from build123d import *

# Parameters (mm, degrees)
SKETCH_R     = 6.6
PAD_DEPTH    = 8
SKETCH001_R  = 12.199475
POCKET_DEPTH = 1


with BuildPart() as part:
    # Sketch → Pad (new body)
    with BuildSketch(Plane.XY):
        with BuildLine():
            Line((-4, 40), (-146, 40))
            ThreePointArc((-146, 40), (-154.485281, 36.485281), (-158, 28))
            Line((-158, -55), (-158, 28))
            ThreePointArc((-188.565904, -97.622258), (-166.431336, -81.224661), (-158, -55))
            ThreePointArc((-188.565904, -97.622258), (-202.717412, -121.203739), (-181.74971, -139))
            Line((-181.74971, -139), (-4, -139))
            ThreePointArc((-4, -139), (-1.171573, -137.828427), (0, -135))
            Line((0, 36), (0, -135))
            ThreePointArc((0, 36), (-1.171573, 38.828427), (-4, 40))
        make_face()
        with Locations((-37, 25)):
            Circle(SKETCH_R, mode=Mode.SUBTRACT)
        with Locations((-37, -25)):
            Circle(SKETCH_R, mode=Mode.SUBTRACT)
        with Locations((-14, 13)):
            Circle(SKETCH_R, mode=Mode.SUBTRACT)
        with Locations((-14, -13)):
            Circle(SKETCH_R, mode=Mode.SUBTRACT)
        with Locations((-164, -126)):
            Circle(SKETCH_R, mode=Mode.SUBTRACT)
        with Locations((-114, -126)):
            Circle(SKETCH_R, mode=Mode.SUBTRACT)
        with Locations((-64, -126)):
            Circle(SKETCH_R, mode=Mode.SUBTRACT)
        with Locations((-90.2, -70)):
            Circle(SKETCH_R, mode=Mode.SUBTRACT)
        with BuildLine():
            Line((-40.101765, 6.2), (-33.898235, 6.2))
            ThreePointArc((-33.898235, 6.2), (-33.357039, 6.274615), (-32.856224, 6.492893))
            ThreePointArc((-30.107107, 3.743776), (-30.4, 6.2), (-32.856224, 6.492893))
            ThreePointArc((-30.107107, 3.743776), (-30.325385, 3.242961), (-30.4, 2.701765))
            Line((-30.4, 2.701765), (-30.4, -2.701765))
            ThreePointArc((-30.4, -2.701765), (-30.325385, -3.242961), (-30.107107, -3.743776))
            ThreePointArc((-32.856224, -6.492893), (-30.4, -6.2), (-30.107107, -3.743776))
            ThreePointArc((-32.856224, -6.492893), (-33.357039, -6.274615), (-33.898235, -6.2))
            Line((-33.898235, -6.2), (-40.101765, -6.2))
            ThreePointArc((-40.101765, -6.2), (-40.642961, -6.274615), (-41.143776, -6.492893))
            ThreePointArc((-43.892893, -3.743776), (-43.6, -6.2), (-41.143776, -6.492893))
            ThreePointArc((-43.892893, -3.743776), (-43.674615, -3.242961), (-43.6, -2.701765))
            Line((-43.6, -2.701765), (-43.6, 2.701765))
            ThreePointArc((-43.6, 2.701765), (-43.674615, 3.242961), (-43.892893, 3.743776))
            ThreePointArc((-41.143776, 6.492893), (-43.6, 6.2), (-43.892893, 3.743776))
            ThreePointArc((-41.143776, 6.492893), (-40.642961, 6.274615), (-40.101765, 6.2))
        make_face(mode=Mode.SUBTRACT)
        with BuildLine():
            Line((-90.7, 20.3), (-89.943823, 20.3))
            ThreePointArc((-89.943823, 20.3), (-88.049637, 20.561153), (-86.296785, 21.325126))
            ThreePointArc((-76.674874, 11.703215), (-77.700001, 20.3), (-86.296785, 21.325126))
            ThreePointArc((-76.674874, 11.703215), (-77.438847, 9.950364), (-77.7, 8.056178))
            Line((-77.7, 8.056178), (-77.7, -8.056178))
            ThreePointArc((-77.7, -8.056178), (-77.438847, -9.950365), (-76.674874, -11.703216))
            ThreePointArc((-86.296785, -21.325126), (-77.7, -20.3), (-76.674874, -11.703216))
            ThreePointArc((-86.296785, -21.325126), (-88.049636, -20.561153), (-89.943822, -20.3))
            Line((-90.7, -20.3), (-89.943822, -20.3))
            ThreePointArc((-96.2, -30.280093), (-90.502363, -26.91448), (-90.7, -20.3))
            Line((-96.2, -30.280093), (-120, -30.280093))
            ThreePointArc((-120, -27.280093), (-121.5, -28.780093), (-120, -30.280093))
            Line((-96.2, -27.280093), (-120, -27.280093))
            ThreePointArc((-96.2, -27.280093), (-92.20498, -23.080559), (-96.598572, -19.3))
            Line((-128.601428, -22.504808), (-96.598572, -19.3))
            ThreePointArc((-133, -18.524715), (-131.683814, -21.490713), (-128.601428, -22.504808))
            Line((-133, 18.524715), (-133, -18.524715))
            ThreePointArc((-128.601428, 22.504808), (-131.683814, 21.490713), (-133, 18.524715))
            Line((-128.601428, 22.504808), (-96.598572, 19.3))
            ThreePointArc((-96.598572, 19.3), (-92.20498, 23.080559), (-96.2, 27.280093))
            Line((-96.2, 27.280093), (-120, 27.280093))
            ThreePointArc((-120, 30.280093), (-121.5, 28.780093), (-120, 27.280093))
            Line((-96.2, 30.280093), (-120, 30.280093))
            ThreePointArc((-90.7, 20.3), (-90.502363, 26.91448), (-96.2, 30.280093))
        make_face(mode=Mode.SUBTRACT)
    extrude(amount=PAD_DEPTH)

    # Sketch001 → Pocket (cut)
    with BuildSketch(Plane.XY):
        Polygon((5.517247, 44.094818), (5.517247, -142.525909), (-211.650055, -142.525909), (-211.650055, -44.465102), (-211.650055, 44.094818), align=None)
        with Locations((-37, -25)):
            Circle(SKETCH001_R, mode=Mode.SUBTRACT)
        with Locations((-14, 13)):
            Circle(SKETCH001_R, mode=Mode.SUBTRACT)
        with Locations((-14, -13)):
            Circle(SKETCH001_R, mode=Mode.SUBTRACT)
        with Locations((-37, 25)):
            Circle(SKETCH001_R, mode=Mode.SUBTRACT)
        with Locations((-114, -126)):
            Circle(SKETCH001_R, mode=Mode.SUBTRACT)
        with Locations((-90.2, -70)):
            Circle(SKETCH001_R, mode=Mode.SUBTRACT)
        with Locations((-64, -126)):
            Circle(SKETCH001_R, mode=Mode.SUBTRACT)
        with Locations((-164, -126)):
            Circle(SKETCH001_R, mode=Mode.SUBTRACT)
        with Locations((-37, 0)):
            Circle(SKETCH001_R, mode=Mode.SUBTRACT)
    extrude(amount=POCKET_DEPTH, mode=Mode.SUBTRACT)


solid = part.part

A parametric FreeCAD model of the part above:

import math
import FreeCAD as App
import Part
import Sketcher

V = App.Vector


def add_polygon(sketch, points):
    """Adds a closed chain of lines whose ends are joined by coincident constraints."""
    first, n = sketch.GeometryCount, len(points)
    for a, b in zip(points, points[1:] + points[:1]):
        sketch.addGeometry(Part.LineSegment(App.Vector(*a, 0), App.Vector(*b, 0)), False)
    for i in range(n):
        sketch.addConstraint(Sketcher.Constraint("Coincident", first + i, 2, first + (i + 1) % n, 1))

doc = App.newDocument("Part")
body = doc.addObject("PartDesign::Body", "Body")

# Sketch on XY plane
sketch1 = body.newObject("Sketcher::SketchObject", "Sketch")
sketch1.AttachmentSupport = (doc.getObject("XY_Plane"), [""])
sketch1.MapMode = "FlatFace"
sketch1.addGeometry([
    Part.LineSegment(V(-4, 40, 0), V(-146, 40, 0)),  # 0
    Part.ArcOfCircle(Part.Circle(V(-146, 28, 0), V(0, 0, 1), 12), math.radians(90), math.radians(180)),  # 1
    Part.LineSegment(V(-158, 28, 0), V(-158, -55, 0)),  # 2
    Part.ArcOfCircle(Part.Circle(V(-203, -55, 0), V(0, 0, 1), 45), math.radians(-71), math.radians(0)),  # 3
    Part.ArcOfCircle(Part.Circle(V(-181.7, -117.7, 0), V(0, 0, 1), 21.3), math.radians(109), math.radians(270)),  # 4
    Part.LineSegment(V(-181.7, -139, 0), V(-4, -139, 0)),  # 5
    Part.ArcOfCircle(Part.Circle(V(-4, -135, 0), V(0, 0, 1), 4), math.radians(-90), math.radians(0)),  # 6
    Part.LineSegment(V(0, -135, 0), V(0, 36, 0)),  # 7
    Part.ArcOfCircle(Part.Circle(V(-4, 36, 0), V(0, 0, 1), 4), math.radians(0), math.radians(90)),  # 8
    Part.Circle(V(-164, -126, 0), V(0, 0, 1), 6.6),  # 9
    Part.Circle(V(-114, -126, 0), V(0, 0, 1), 6.6),  # 10
    Part.Circle(V(-90.2, -70, 0), V(0, 0, 1), 6.6),  # 11
    Part.Circle(V(-64, -126, 0), V(0, 0, 1), 6.6),  # 12
    Part.ArcOfCircle(Part.Circle(V(-96.2, 23.8, 0), V(0, 0, 1), 6.5), math.radians(-32), math.radians(90)),  # 13
    Part.LineSegment(V(-90.7, 20.3, 0), V(-89.9, 20.3, 0)),  # 14
    Part.ArcOfCircle(Part.Circle(V(-89.9, 27.3, 0), V(0, 0, 1), 7), math.radians(-90), math.radians(-59)),  # 15
    Part.ArcOfCircle(Part.Circle(V(-82.6, 15.4, 0), V(0, 0, 1), 7), math.radians(-31), math.radians(121)),  # 16
    Part.ArcOfCircle(Part.Circle(V(-70.7, 8.1, 0), V(0, 0, 1), 7), math.radians(149), math.radians(180)),  # 17
    Part.LineSegment(V(-77.7, 8.1, 0), V(-77.7, -8.1, 0)),  # 18
    Part.ArcOfCircle(Part.Circle(V(-70.7, -8.1, 0), V(0, 0, 1), 7), math.radians(180), math.radians(211)),  # 19
    Part.ArcOfCircle(Part.Circle(V(-82.6, -15.4, 0), V(0, 0, 1), 7), math.radians(-121), math.radians(31)),  # 20
    Part.ArcOfCircle(Part.Circle(V(-89.9, -27.3, 0), V(0, 0, 1), 7), math.radians(59), math.radians(90)),  # 21
    Part.LineSegment(V(-89.9, -20.3, 0), V(-90.7, -20.3, 0)),  # 22
    Part.ArcOfCircle(Part.Circle(V(-96.2, -23.8, 0), V(0, 0, 1), 6.5), math.radians(-90), math.radians(32)),  # 23
    Part.LineSegment(V(-96.2, -30.3, 0), V(-120, -30.3, 0)),  # 24
    Part.ArcOfCircle(Part.Circle(V(-120, -28.8, 0), V(0, 0, 1), 1.5), math.radians(90), math.radians(270)),  # 25
    Part.LineSegment(V(-120, -27.3, 0), V(-96.2, -27.3, 0)),  # 26
    Part.ArcOfCircle(Part.Circle(V(-96.2, -23.3, 0), V(0, 0, 1), 4), math.radians(-90), math.radians(96)),  # 27
    Part.LineSegment(V(-96.6, -19.3, 0), V(-128.6, -22.5, 0)),  # 28
    Part.ArcOfCircle(Part.Circle(V(-129, -18.5, 0), V(0, 0, 1), 4), math.radians(180), math.radians(276)),  # 29
    Part.LineSegment(V(-133, -18.5, 0), V(-133, 18.5, 0)),  # 30
    Part.ArcOfCircle(Part.Circle(V(-129, 18.5, 0), V(0, 0, 1), 4), math.radians(84), math.radians(180)),  # 31
    Part.LineSegment(V(-128.6, 22.5, 0), V(-96.6, 19.3, 0)),  # 32
    Part.ArcOfCircle(Part.Circle(V(-96.2, 23.3, 0), V(0, 0, 1), 4), math.radians(-96), math.radians(90)),  # 33
    Part.LineSegment(V(-96.2, 27.3, 0), V(-120, 27.3, 0)),  # 34
    Part.ArcOfCircle(Part.Circle(V(-120, 28.8, 0), V(0, 0, 1), 1.5), math.radians(90), math.radians(270)),  # 35
    Part.LineSegment(V(-120, 30.3, 0), V(-96.2, 30.3, 0)),  # 36
    Part.Circle(V(-37, -25, 0), V(0, 0, 1), 6.6),  # 37
    Part.Circle(V(-14, -13, 0), V(0, 0, 1), 6.6),  # 38
    Part.ArcOfCircle(Part.Circle(V(-40.1, 8.2, 0), V(0, 0, 1), 2), math.radians(-121), math.radians(-90)),  # 39
    Part.LineSegment(V(-40.1, 6.2, 0), V(-33.9, 6.2, 0)),  # 40
    Part.ArcOfCircle(Part.Circle(V(-33.9, 8.2, 0), V(0, 0, 1), 2), math.radians(-90), math.radians(-59)),  # 41
    Part.ArcOfCircle(Part.Circle(V(-31.8, 4.8, 0), V(0, 0, 1), 2), math.radians(-31), math.radians(121)),  # 42
    Part.ArcOfCircle(Part.Circle(V(-28.4, 2.7, 0), V(0, 0, 1), 2), math.radians(149), math.radians(180)),  # 43
    Part.LineSegment(V(-30.4, 2.7, 0), V(-30.4, -2.7, 0)),  # 44
    Part.ArcOfCircle(Part.Circle(V(-28.4, -2.7, 0), V(0, 0, 1), 2), math.radians(180), math.radians(211)),  # 45
    Part.ArcOfCircle(Part.Circle(V(-31.8, -4.8, 0), V(0, 0, 1), 2), math.radians(-121), math.radians(31)),  # 46
    Part.ArcOfCircle(Part.Circle(V(-33.9, -8.2, 0), V(0, 0, 1), 2), math.radians(59), math.radians(90)),  # 47
    Part.LineSegment(V(-33.9, -6.2, 0), V(-40.1, -6.2, 0)),  # 48
    Part.ArcOfCircle(Part.Circle(V(-40.1, -8.2, 0), V(0, 0, 1), 2), math.radians(90), math.radians(121)),  # 49
    Part.ArcOfCircle(Part.Circle(V(-42.2, -4.8, 0), V(0, 0, 1), 2), math.radians(149), math.radians(301)),  # 50
    Part.ArcOfCircle(Part.Circle(V(-45.6, -2.7, 0), V(0, 0, 1), 2), math.radians(-31), math.radians(0)),  # 51
    Part.LineSegment(V(-43.6, -2.7, 0), V(-43.6, 2.7, 0)),  # 52
    Part.ArcOfCircle(Part.Circle(V(-45.6, 2.7, 0), V(0, 0, 1), 2), math.radians(0), math.radians(31)),  # 53
    Part.ArcOfCircle(Part.Circle(V(-42.2, 4.8, 0), V(0, 0, 1), 2), math.radians(59), math.radians(211)),  # 54
    Part.Circle(V(-37, 25, 0), V(0, 0, 1), 6.6),  # 55
    Part.Circle(V(-14, 13, 0), V(0, 0, 1), 6.6),  # 56
], False)
sketch1.addConstraint([
    Sketcher.Constraint("Tangent", 0, 2, 1, 1),
    Sketcher.Constraint("Tangent", 1, 2, 2, 1),
    Sketcher.Constraint("Tangent", 2, 2, 3, 2),
    Sketcher.Constraint("Tangent", 3, 1, 4, 1),
    Sketcher.Constraint("Tangent", 4, 2, 5, 1),
    Sketcher.Constraint("Tangent", 5, 2, 6, 1),
    Sketcher.Constraint("Tangent", 6, 2, 7, 1),
    Sketcher.Constraint("Tangent", 7, 2, 8, 1),
    Sketcher.Constraint("Tangent", 8, 2, 0, 1),
    Sketcher.Constraint("Coincident", 13, 1, 14, 1),
    Sketcher.Constraint("Tangent", 14, 2, 15, 1),
    Sketcher.Constraint("Tangent", 15, 2, 16, 2),
    Sketcher.Constraint("Tangent", 16, 1, 17, 1),
    Sketcher.Constraint("Tangent", 17, 2, 18, 1),
    Sketcher.Constraint("Tangent", 18, 2, 19, 1),
    Sketcher.Constraint("Tangent", 19, 2, 20, 2),
    Sketcher.Constraint("Tangent", 20, 1, 21, 1),
    Sketcher.Constraint("Tangent", 21, 2, 22, 1),
    Sketcher.Constraint("Coincident", 22, 2, 23, 2),
    Sketcher.Constraint("Tangent", 23, 1, 24, 1),
    Sketcher.Constraint("Tangent", 24, 2, 25, 2),
    Sketcher.Constraint("Tangent", 25, 1, 26, 1),
    Sketcher.Constraint("Tangent", 26, 2, 27, 1),
    Sketcher.Constraint("Tangent", 27, 2, 28, 1),
    Sketcher.Constraint("Tangent", 28, 2, 29, 2),
    Sketcher.Constraint("Tangent", 29, 1, 30, 1),
    Sketcher.Constraint("Tangent", 30, 2, 31, 2),
    Sketcher.Constraint("Tangent", 31, 1, 32, 1),
    Sketcher.Constraint("Tangent", 32, 2, 33, 1),
    Sketcher.Constraint("Tangent", 33, 2, 34, 1),
    Sketcher.Constraint("Tangent", 34, 2, 35, 2),
    Sketcher.Constraint("Tangent", 35, 1, 36, 1),
    Sketcher.Constraint("Tangent", 36, 2, 13, 2),
    Sketcher.Constraint("Tangent", 39, 2, 40, 1),
    Sketcher.Constraint("Tangent", 40, 2, 41, 1),
    Sketcher.Constraint("Tangent", 41, 2, 42, 2),
    Sketcher.Constraint("Tangent", 42, 1, 43, 1),
    Sketcher.Constraint("Tangent", 43, 2, 44, 1),
    Sketcher.Constraint("Tangent", 44, 2, 45, 1),
    Sketcher.Constraint("Tangent", 45, 2, 46, 2),
    Sketcher.Constraint("Tangent", 46, 1, 47, 1),
    Sketcher.Constraint("Tangent", 47, 2, 48, 1),
    Sketcher.Constraint("Tangent", 48, 2, 49, 1),
    Sketcher.Constraint("Tangent", 49, 2, 50, 2),
    Sketcher.Constraint("Tangent", 50, 1, 51, 1),
    Sketcher.Constraint("Tangent", 51, 2, 52, 1),
    Sketcher.Constraint("Tangent", 52, 2, 53, 1),
    Sketcher.Constraint("Tangent", 53, 2, 54, 2),
    Sketcher.Constraint("Tangent", 54, 1, 39, 1),
    Sketcher.Constraint("Horizontal", 0),
    Sketcher.Constraint("Vertical", 2),
    Sketcher.Constraint("Horizontal", 5),
    Sketcher.Constraint("Vertical", 7),
    Sketcher.Constraint("Horizontal", 14),
    Sketcher.Constraint("Vertical", 18),
    Sketcher.Constraint("Horizontal", 22),
    Sketcher.Constraint("Horizontal", 24),
    Sketcher.Constraint("Horizontal", 26),
    Sketcher.Constraint("Vertical", 30),
    Sketcher.Constraint("Horizontal", 34),
    Sketcher.Constraint("Horizontal", 36),
    Sketcher.Constraint("Horizontal", 40),
    Sketcher.Constraint("Vertical", 44),
    Sketcher.Constraint("Horizontal", 48),
    Sketcher.Constraint("Vertical", 52),
    Sketcher.Constraint("Equal", 6, 8),
    Sketcher.Constraint("Equal", 9, 10),
    Sketcher.Constraint("Equal", 10, 11),
    Sketcher.Constraint("Equal", 11, 12),
    Sketcher.Constraint("Equal", 16, 17),
    Sketcher.Constraint("Equal", 17, 19),
    Sketcher.Constraint("Equal", 19, 20),
    Sketcher.Constraint("Equal", 20, 21),
    Sketcher.Constraint("Equal", 13, 23),
    Sketcher.Constraint("Equal", 8, 27),
    Sketcher.Constraint("Equal", 27, 29),
    Sketcher.Constraint("Equal", 29, 31),
    Sketcher.Constraint("Equal", 31, 33),
    Sketcher.Constraint("Equal", 25, 35),
    Sketcher.Constraint("Equal", 12, 37),
    Sketcher.Constraint("Equal", 37, 38),
    Sketcher.Constraint("Equal", 39, 41),
    Sketcher.Constraint("Equal", 41, 42),
    Sketcher.Constraint("Equal", 42, 43),
    Sketcher.Constraint("Equal", 43, 45),
    Sketcher.Constraint("Equal", 45, 46),
    Sketcher.Constraint("Equal", 46, 47),
    Sketcher.Constraint("Equal", 47, 49),
    Sketcher.Constraint("Equal", 49, 50),
    Sketcher.Constraint("Equal", 50, 51),
    Sketcher.Constraint("Equal", 51, 53),
    Sketcher.Constraint("Equal", 53, 54),
    Sketcher.Constraint("Equal", 38, 55),
    Sketcher.Constraint("Equal", 55, 56),
    Sketcher.Constraint("Symmetric", 16, 3, 20, 3, -1),
    Sketcher.Constraint("Symmetric", 15, 3, 21, 3, -1),
    Sketcher.Constraint("Symmetric", 13, 3, 23, 3, -1),
    Sketcher.Constraint("Symmetric", 42, 3, 46, 3, -1),
    Sketcher.Constraint("Symmetric", 39, 3, 49, 3, -1),
    Sketcher.Constraint("Symmetric", 37, 3, 55, 3, -1),
    Sketcher.Constraint("Symmetric", 38, 3, 56, 3, -1),
    Sketcher.Constraint("Symmetric", 28, 2, 31, 1, -1),
    Sketcher.Constraint("PointOnObject", 6, 2, -2),
    Sketcher.Constraint("Horizontal", 9, 3, 10, 3),
    Sketcher.Constraint("Horizontal", 10, 3, 12, 3),
    Sketcher.Constraint("Horizontal", 46, 3, 50, 3),
    Sketcher.Constraint("Horizontal", 45, 3, 51, 3),
    Sketcher.Constraint("Horizontal", 43, 3, 53, 3),
    Sketcher.Constraint("Vertical", 23, 3, 27, 3),
    Sketcher.Constraint("Vertical", 25, 3, 35, 3),
    Sketcher.Constraint("Radius", 1, 12.000001),
    Sketcher.Constraint("Radius", 3, 44.999999),
    Sketcher.Constraint("Radius", 6, 4.0),
    Sketcher.Constraint("Radius", 16, 7.0),
    Sketcher.Constraint("Radius", 39, 2.000001),
    Sketcher.Constraint("Diameter", 9, 13.2),
    Sketcher.Constraint("Radius", 25, 1.5),
    Sketcher.Constraint("DistanceX", 0, 2, 0, 1, 142.0),
    Sketcher.Constraint("DistanceY", 2, 2, 2, 1, 83.0),
    Sketcher.Constraint("DistanceY", 7, 1, 7, 2, 171.0),
    Sketcher.Constraint("DistanceX", 24, 2, 24, 1, 23.8),
    Sketcher.Constraint("DistanceY", -1, 1, 1, 3, 27.999999),
    Sketcher.Constraint("DistanceX", 9, 3, -1, 1, 164.0),
    Sketcher.Constraint("DistanceY", 9, 3, -1, 1, 126.0),
    Sketcher.Constraint("DistanceX", 10, 3, -1, 1, 114.0),
    Sketcher.Constraint("DistanceY", 11, 3, -1, 1, 70.0),
    Sketcher.Constraint("DistanceX", 12, 3, -1, 1, 64.0),
    Sketcher.Constraint("DistanceX", 25, 3, -1, 1, 120.0),
    Sketcher.Constraint("DistanceX", 29, 3, -1, 1, 129.0),
    Sketcher.Constraint("DistanceX", 37, 3, -1, 1, 37.0),
    Sketcher.Constraint("DistanceY", 37, 3, -1, 1, 25.0),
    Sketcher.Constraint("DistanceX", 38, 3, -1, 1, 14.0),
    Sketcher.Constraint("DistanceY", 38, 3, -1, 1, 13.0),
    Sketcher.Constraint("DistanceX", 11, 3, -1, 1, 90.2),
    Sketcher.Constraint("DistanceX", 17, 3, -1, 1, 70.700001),
    Sketcher.Constraint("DistanceY", 21, 3, -1, 1, 27.299999),
    Sketcher.Constraint("DistanceY", -1, 1, 39, 3, 8.200001),
    Sketcher.Constraint("DistanceX", 43, 3, -1, 1, 28.399999),
    Sketcher.Constraint("DistanceX", 51, 3, -1, 1, 45.600001),
    Sketcher.Constraint("DistanceX", 13, 1, -1, 1, 90.7),
    Sketcher.Constraint("DistanceY", 27, 2, -1, 1, 19.3),
    Sketcher.Constraint("Radius", 4, 21.25029),
    Sketcher.Constraint("DistanceX", 22, 2, 22, 1, 0.756178),
    Sketcher.Constraint("DistanceX", 40, 1, 40, 2, 6.20353),
    Sketcher.Constraint("DistanceY", 30, 1, 30, 2, 37.04943),
    Sketcher.Constraint("DistanceY", 44, 2, 44, 1, 5.40353),
    Sketcher.Constraint("DistanceY", 18, 2, 18, 1, 16.112356),
])
pad1 = body.newObject("PartDesign::Pad", "Pad")
pad1.Profile = sketch1
pad1.Length = 8

# Sketch on XY plane
sketch2 = body.newObject("Sketcher::SketchObject", "Sketch001")
sketch2.AttachmentSupport = (doc.getObject("XY_Plane"), [""])
sketch2.MapMode = "FlatFace"
add_polygon(sketch2, [(6, -143), (6, 44), (-212, 44), (-212, -143)])  # lines 0-3
sketch2.addGeometry(Part.Circle(V(-64, -126, 0), V(0, 0, 1), 12), False)  # 4
sketch2.addGeometry(Part.Circle(V(-114, -126, 0), V(0, 0, 1), 12), False)  # 5
sketch2.addGeometry(Part.Circle(V(-164, -126, 0), V(0, 0, 1), 12), False)  # 6
sketch2.addGeometry(Part.Circle(V(-90, -70, 0), V(0, 0, 1), 12), False)  # 7
sketch2.addGeometry(Part.Circle(V(-14, -13, 0), V(0, 0, 1), 12), False)  # 8
sketch2.addGeometry(Part.Circle(V(-37, -25, 0), V(0, 0, 1), 12), False)  # 9
sketch2.addGeometry(Part.Circle(V(-14, 13, 0), V(0, 0, 1), 12), False)  # 10
sketch2.addGeometry(Part.Circle(V(-37, 0, 0), V(0, 0, 1), 12), False)  # 11
sketch2.addGeometry(Part.Circle(V(-37, 25, 0), V(0, 0, 1), 12), False)  # 12
sketch2.addConstraint([
    Sketcher.Constraint("Vertical", 0),
    Sketcher.Constraint("Horizontal", 1),
    Sketcher.Constraint("Vertical", 2),
    Sketcher.Constraint("Horizontal", 3),
    Sketcher.Constraint("Equal", 4, 5),
    Sketcher.Constraint("Equal", 5, 6),
    Sketcher.Constraint("Equal", 6, 7),
    Sketcher.Constraint("Equal", 7, 8),
    Sketcher.Constraint("Equal", 8, 9),
    Sketcher.Constraint("Equal", 9, 10),
    Sketcher.Constraint("Equal", 10, 11),
    Sketcher.Constraint("Equal", 11, 12),
    Sketcher.Constraint("Symmetric", 8, 3, 10, 3, -1),
    Sketcher.Constraint("Symmetric", 9, 3, 12, 3, -1),
    Sketcher.Constraint("PointOnObject", 11, 3, -1),
    Sketcher.Constraint("Horizontal", 4, 3, 5, 3),
    Sketcher.Constraint("Horizontal", 5, 3, 6, 3),
    Sketcher.Constraint("Vertical", 9, 3, 11, 3),
    Sketcher.Constraint("DistanceX", 4, 3, -1, 1, 64.0),
    Sketcher.Constraint("DistanceY", 4, 3, -1, 1, 126.0),
    Sketcher.Constraint("DistanceX", 5, 3, -1, 1, 114.0),
    Sketcher.Constraint("DistanceX", 6, 3, -1, 1, 164.0),
    Sketcher.Constraint("DistanceY", 7, 3, -1, 1, 70.0),
    Sketcher.Constraint("DistanceX", 8, 3, -1, 1, 14.0),
    Sketcher.Constraint("DistanceY", 8, 3, -1, 1, 13.0),
    Sketcher.Constraint("DistanceX", 9, 3, -1, 1, 37.0),
    Sketcher.Constraint("DistanceY", 9, 3, -1, 1, 25.0),
    Sketcher.Constraint("DistanceX", 7, 3, -1, 1, 90.2),
    Sketcher.Constraint("Diameter", 4, 24.39895),
    Sketcher.Constraint("DistanceX", 1, 2, 1, 1, 217.167302),
    Sketcher.Constraint("DistanceY", 0, 1, 0, 2, 186.620727),
    Sketcher.Constraint("DistanceY", 2, 2, -1, 1, 142.525909),
    Sketcher.Constraint("DistanceX", -1, 1, 0, 2, 5.517247),
])
pocket1 = body.newObject("PartDesign::Pocket", "Pocket")
pocket1.Profile = sketch2
pocket1.Length = 1
pocket1.Reversed = True

doc.recompute()
